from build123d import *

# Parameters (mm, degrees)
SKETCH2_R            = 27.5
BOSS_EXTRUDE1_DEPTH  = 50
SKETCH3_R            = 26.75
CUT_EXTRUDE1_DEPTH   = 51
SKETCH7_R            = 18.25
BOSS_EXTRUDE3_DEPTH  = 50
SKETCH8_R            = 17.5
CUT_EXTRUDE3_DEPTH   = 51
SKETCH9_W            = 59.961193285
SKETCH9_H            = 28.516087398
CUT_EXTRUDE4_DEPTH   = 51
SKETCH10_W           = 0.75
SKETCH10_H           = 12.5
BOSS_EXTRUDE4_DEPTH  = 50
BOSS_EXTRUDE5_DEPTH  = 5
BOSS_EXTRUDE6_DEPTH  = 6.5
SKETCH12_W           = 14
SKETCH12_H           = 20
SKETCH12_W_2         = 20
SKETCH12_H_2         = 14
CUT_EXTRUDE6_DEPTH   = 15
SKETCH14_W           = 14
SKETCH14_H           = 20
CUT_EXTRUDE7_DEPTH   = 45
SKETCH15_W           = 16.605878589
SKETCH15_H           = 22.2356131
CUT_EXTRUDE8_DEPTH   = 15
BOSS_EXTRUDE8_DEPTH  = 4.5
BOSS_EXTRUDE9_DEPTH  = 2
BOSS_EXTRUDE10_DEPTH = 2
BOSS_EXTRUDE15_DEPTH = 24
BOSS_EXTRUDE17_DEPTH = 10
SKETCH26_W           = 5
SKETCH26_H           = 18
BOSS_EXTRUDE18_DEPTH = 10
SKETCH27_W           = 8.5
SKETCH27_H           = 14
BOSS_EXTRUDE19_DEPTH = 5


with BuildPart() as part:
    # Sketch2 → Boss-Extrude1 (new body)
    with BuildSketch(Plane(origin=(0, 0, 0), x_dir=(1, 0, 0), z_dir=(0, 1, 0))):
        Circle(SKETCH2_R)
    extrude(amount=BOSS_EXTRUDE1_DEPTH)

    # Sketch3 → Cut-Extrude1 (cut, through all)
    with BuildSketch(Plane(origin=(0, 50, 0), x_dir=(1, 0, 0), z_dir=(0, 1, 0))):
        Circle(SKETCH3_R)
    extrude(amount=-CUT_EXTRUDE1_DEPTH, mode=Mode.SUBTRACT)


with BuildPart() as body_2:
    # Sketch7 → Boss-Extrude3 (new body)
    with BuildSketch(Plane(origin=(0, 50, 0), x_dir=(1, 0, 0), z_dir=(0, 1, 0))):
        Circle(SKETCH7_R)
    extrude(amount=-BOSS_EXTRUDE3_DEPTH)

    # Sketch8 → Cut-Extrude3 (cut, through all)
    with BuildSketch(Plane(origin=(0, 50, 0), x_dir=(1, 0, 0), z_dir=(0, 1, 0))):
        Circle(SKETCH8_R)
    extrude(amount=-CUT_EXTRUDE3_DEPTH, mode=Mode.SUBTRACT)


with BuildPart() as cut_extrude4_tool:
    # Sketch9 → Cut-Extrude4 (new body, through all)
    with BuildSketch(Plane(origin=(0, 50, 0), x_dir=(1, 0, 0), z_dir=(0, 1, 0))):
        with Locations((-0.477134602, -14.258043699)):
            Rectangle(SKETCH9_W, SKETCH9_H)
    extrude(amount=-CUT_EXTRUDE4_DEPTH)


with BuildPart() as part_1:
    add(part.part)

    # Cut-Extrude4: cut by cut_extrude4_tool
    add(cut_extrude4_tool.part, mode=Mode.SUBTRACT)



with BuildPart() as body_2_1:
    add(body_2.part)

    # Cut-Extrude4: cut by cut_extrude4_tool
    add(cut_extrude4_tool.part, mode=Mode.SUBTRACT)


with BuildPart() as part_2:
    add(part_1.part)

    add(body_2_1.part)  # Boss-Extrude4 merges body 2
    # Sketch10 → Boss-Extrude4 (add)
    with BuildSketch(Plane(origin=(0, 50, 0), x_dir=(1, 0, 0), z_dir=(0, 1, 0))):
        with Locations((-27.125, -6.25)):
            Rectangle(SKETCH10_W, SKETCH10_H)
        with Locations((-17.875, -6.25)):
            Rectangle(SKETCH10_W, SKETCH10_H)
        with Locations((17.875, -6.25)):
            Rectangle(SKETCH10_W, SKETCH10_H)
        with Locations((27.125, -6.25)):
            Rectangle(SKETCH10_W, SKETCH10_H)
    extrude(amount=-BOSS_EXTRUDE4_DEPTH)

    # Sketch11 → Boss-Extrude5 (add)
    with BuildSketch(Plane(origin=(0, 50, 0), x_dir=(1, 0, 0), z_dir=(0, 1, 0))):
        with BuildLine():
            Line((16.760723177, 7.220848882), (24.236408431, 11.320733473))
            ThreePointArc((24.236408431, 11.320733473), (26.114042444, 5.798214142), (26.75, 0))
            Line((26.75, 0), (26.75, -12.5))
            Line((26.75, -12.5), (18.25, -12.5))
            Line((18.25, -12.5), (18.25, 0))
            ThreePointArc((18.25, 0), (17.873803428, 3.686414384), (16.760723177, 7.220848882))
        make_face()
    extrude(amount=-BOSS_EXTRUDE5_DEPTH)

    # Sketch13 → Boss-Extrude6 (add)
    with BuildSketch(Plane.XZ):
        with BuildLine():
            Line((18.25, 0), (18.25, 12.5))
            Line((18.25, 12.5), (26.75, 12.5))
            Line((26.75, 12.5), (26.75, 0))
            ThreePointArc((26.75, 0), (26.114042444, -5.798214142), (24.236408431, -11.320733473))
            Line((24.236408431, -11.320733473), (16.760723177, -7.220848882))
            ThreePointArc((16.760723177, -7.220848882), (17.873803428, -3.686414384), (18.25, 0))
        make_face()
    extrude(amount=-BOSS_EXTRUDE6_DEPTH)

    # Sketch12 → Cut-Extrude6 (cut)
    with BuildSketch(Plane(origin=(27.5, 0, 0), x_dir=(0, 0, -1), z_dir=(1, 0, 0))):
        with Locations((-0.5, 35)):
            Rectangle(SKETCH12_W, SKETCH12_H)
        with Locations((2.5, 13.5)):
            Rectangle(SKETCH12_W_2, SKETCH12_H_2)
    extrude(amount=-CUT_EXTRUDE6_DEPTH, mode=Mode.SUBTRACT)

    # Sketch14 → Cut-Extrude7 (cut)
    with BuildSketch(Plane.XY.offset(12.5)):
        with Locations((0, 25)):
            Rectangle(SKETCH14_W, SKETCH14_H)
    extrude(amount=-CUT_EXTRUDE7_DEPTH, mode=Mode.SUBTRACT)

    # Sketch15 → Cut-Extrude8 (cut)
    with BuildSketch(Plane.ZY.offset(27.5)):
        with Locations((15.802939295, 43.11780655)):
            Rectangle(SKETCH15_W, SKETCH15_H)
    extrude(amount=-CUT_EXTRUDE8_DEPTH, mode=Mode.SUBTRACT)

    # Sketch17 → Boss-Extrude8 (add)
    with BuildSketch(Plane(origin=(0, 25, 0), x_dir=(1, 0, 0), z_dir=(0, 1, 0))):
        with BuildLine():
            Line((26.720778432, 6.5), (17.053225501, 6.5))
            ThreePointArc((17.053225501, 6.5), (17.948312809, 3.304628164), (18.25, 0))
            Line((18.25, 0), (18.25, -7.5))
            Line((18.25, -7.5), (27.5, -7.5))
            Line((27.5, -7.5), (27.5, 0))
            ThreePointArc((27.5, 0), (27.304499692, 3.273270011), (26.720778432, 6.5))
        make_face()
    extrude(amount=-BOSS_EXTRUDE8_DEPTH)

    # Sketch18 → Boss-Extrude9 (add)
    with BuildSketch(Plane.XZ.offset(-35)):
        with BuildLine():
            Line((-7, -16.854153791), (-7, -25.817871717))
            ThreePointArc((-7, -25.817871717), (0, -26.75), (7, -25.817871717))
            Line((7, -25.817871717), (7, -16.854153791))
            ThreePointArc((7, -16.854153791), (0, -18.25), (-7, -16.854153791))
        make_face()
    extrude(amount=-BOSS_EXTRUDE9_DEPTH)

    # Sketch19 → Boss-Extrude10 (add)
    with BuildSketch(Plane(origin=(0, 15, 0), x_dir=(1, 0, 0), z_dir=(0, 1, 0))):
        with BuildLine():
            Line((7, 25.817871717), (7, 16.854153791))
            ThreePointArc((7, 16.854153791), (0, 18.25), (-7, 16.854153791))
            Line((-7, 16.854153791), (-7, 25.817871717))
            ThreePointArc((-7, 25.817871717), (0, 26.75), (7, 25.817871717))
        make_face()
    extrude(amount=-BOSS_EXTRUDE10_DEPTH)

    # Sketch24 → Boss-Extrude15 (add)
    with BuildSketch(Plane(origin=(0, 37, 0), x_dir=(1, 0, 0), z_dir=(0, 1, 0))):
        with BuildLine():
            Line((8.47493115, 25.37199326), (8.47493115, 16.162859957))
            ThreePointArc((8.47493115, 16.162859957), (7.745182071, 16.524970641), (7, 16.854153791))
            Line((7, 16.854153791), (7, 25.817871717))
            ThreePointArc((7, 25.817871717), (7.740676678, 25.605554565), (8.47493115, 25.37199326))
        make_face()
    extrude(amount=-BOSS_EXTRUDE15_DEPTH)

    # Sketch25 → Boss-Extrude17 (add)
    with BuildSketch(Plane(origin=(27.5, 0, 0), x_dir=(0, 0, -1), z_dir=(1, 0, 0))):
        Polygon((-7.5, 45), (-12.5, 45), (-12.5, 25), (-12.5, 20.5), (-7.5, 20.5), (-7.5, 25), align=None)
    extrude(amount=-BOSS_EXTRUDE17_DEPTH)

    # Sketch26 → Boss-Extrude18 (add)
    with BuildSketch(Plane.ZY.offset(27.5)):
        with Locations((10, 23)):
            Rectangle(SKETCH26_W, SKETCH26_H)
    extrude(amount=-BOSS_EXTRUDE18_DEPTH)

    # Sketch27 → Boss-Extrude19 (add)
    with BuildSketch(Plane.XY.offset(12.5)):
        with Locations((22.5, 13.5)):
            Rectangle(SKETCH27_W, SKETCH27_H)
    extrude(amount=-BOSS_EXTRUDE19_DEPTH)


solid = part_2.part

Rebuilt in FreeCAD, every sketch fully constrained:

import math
import FreeCAD as App
import Part
import Sketcher
Q = App.Units.Quantity


def add_polygon(sketch, points):
    """Adds a closed chain of lines whose ends are joined by coincident constraints."""
    first, n = sketch.GeometryCount, len(points)
    for a, b in zip(points, points[1:] + points[:1]):
        sketch.addGeometry(Part.LineSegment(App.Vector(*a, 0), App.Vector(*b, 0)), False)
    for i in range(n):
        sketch.addConstraint(Sketcher.Constraint("Coincident", first + i, 2, first + (i + 1) % n, 1))

doc = App.newDocument("Part")
body = doc.addObject("PartDesign::Body", "Body")

sketch1 = doc.addObject("Sketcher::SketchObject", "Sketch")
body.addObject(sketch1)
sketch1.AttachmentSupport = (doc.XZ_Plane, [""])
sketch1.MapMode = "FlatFace"
sketch1.addGeometry(Part.Circle(App.Vector(0, 0, 0), App.Vector(0, 0, 1), 28), False)
sketch1.addConstraint(Sketcher.Constraint("Coincident", 0, 3, -1, 1))
sketch1.addConstraint(Sketcher.Constraint("Diameter", 0, Q("55 mm")))
pad1 = doc.addObject("PartDesign::Pad", "Pad")
body.addObject(pad1)
pad1.Profile = sketch1
pad1.Length = 50
pad1.Reversed = True

sketch2 = doc.addObject("Sketcher::SketchObject", "Sketch001")
body.addObject(sketch2)
sketch2.AttachmentSupport = (doc.XZ_Plane, [""])
sketch2.MapMode = "FlatFace"
sketch2.AttachmentOffset = App.Placement(App.Vector(0, 0, -50), App.Rotation())
sketch2.addGeometry(Part.Circle(App.Vector(0, 0, 0), App.Vector(0, 0, 1), 27), False)
sketch2.addConstraint(Sketcher.Constraint("Coincident", 0, 3, -1, 1))
sketch2.addConstraint(Sketcher.Constraint("Diameter", 0, Q("53.5 mm")))
pocket1 = doc.addObject("PartDesign::Pocket", "Pocket")
body.addObject(pocket1)
pocket1.Profile = sketch2
pocket1.Type = "ThroughAll"
pocket1.Reversed = True
body2 = doc.addObject("PartDesign::Body", "Body001")

sketch3 = doc.addObject("Sketcher::SketchObject", "Sketch002")
body2.addObject(sketch3)
sketch3.AttachmentSupport = (doc.getObject("XZ_Plane001"), [""])
sketch3.MapMode = "FlatFace"
sketch3.AttachmentOffset = App.Placement(App.Vector(0, 0, -50), App.Rotation())
sketch3.addGeometry(Part.Circle(App.Vector(0, 0, 0), App.Vector(0, 0, 1), 18), False)
sketch3.addConstraint(Sketcher.Constraint("Coincident", 0, 3, -1, 1))
sketch3.addConstraint(Sketcher.Constraint("Diameter", 0, Q("36.5 mm")))
pad2 = doc.addObject("PartDesign::Pad", "Pad001")
body2.addObject(pad2)
pad2.Profile = sketch3
pad2.Length = 50

sketch4 = doc.addObject("Sketcher::SketchObject", "Sketch003")
body2.addObject(sketch4)
sketch4.AttachmentSupport = (doc.getObject("XZ_Plane001"), [""])
sketch4.MapMode = "FlatFace"
sketch4.AttachmentOffset = App.Placement(App.Vector(0, 0, -50), App.Rotation())
sketch4.addGeometry(Part.Circle(App.Vector(0, 0, 0), App.Vector(0, 0, 1), 18), False)
sketch4.addConstraint(Sketcher.Constraint("Coincident", 0, 3, -1, 1))
sketch4.addConstraint(Sketcher.Constraint("Diameter", 0, Q("35 mm")))
pocket2 = doc.addObject("PartDesign::Pocket", "Pocket001")
body2.addObject(pocket2)
pocket2.Profile = sketch4
pocket2.Type = "ThroughAll"
pocket2.Reversed = True
body3 = doc.addObject("PartDesign::Body", "Body002")

sketch5 = doc.addObject("Sketcher::SketchObject", "Sketch004")
body3.addObject(sketch5)
sketch5.AttachmentSupport = (doc.getObject("XZ_Plane002"), [""])
sketch5.MapMode = "FlatFace"
sketch5.AttachmentOffset = App.Placement(App.Vector(0, 0, -50), App.Rotation())
add_polygon(sketch5, [(-30, 0), (-30, 29), (30, 29), (30, 0)])
sketch5.addConstraint(Sketcher.Constraint("Vertical", 0))
sketch5.addConstraint(Sketcher.Constraint("Horizontal", 1))
sketch5.addConstraint(Sketcher.Constraint("Vertical", 2))
sketch5.addConstraint(Sketcher.Constraint("Horizontal", 3))
sketch5.addConstraint(Sketcher.Constraint("PointOnObject", 2, 2, -1))
sketch5.addConstraint(Sketcher.Constraint("DistanceX", 1, 1, 1, 2, Q("59.961193 mm")))
sketch5.addConstraint(Sketcher.Constraint("DistanceY", 0, 1, 0, 2, Q("28.516087 mm")))
sketch5.addConstraint(Sketcher.Constraint("DistanceX", 0, 2, -1, 1, Q("30.457731 mm")))
pad3 = doc.addObject("PartDesign::Pad", "Pad002")
body3.addObject(pad3)
pad3.Profile = sketch5
pad3.Length = 51
doc.recompute()

body4 = doc.addObject("PartDesign::Body", "Body003")
body4.BaseFeature = body3
boolean = doc.addObject("PartDesign::Boolean", "Boolean")
body.addObject(boolean)
boolean.Type = "Cut"
boolean.addObjects([body4])
doc.recompute()

boolean2 = doc.addObject("PartDesign::Boolean", "Boolean001")
body2.addObject(boolean2)
boolean2.Type = "Cut"
boolean2.addObjects([body3])
body.AllowCompound = True
doc.recompute()

boolean3 = doc.addObject("PartDesign::Boolean", "Boolean002")
body.addObject(boolean3)
boolean3.Type = "Fuse"
boolean3.addObjects([body2])

sketch6 = doc.addObject("Sketcher::SketchObject", "Sketch005")
body.addObject(sketch6)
sketch6.AttachmentSupport = (doc.XZ_Plane, [""])
sketch6.MapMode = "FlatFace"
sketch6.AttachmentOffset = App.Placement(App.Vector(0, 0, -50), App.Rotation())
add_polygon(sketch6, [(-27.5, 0), (-27.5, 12.5), (-26.8, 12.5), (-26.8, 0)])
add_polygon(sketch6, [(-18.2, 0), (-18.2, 12.5), (-17.5, 12.5), (-17.5, 0)])
add_polygon(sketch6, [(17.5, 0), (17.5, 12.5), (18.2, 12.5), (18.2, 0)])
add_polygon(sketch6, [(26.8, 0), (26.8, 12.5), (27.5, 12.5), (27.5, 0)])
sketch6.addConstraint(Sketcher.Constraint("Vertical", 0))
sketch6.addConstraint(Sketcher.Constraint("Horizontal", 1))
sketch6.addConstraint(Sketcher.Constraint("Vertical", 2))
sketch6.addConstraint(Sketcher.Constraint("Horizontal", 3))
sketch6.addConstraint(Sketcher.Constraint("Vertical", 4))
sketch6.addConstraint(Sketcher.Constraint("Horizontal", 5))
sketch6.addConstraint(Sketcher.Constraint("Vertical", 6))
sketch6.addConstraint(Sketcher.Constraint("Horizontal", 7))
sketch6.addConstraint(Sketcher.Constraint("Vertical", 8))
sketch6.addConstraint(Sketcher.Constraint("Horizontal", 9))
sketch6.addConstraint(Sketcher.Constraint("Vertical", 10))
sketch6.addConstraint(Sketcher.Constraint("Horizontal", 11))
sketch6.addConstraint(Sketcher.Constraint("Vertical", 12))
sketch6.addConstraint(Sketcher.Constraint("Horizontal", 13))
sketch6.addConstraint(Sketcher.Constraint("Vertical", 14))
sketch6.addConstraint(Sketcher.Constraint("Horizontal", 15))
sketch6.addConstraint(Sketcher.Constraint("Symmetric", 7, 2, 10, 2, -1, 1))
sketch6.addConstraint(Sketcher.Constraint("Symmetric", 3, 2, 14, 2, -1, 1))
sketch6.addConstraint(Sketcher.Constraint("Symmetric", 5, 2, 8, 2, -2))
sketch6.addConstraint(Sketcher.Constraint("Symmetric", 1, 2, 12, 2, -2))
sketch6.addConstraint(Sketcher.Constraint("PointOnObject", 2, 2, -1))
sketch6.addConstraint(Sketcher.Constraint("PointOnObject", 6, 2, -1))
sketch6.addConstraint(Sketcher.Constraint("Horizontal", 1, 2, 4, 2))
sketch6.addConstraint(Sketcher.Constraint("Equal", 3, 5))
sketch6.addConstraint(Sketcher.Constraint("DistanceY", 0, 1, 0, 2, Q("12.5 mm")))
sketch6.addConstraint(Sketcher.Constraint("DistanceX", 0, 2, 5, 2, Q("10 mm")))
sketch6.addConstraint(Sketcher.Constraint("DistanceX", 5, 2, 8, 2, Q("35 mm")))
sketch6.addConstraint(Sketcher.Constraint("DistanceX", 1, 1, 1, 2, Q("0.75 mm")))
pad4 = doc.addObject("PartDesign::Pad", "Pad003")
body.addObject(pad4)
pad4.Profile = sketch6
pad4.Length = 50

sketch7 = doc.addObject("Sketcher::SketchObject", "Sketch006")
body.addObject(sketch7)
sketch7.AttachmentSupport = (doc.XZ_Plane, [""])
sketch7.MapMode = "FlatFace"
sketch7.AttachmentOffset = App.Placement(App.Vector(0, 0, -50), App.Rotation())
sketch7.addGeometry(Part.LineSegment(App.Vector(24, -11, 0), App.Vector(17, -7, 0)), False)
sketch7.addGeometry(Part.ArcOfCircle(Part.Circle(App.Vector(0, 0, 0), App.Vector(0, 0, 1), 18), math.radians(-23), math.radians(0)), False)
sketch7.addGeometry(Part.LineSegment(App.Vector(18, 0, 0), App.Vector(18, 12, 0)), False)
sketch7.addGeometry(Part.LineSegment(App.Vector(18, 12, 0), App.Vector(27, 12, 0)), False)
sketch7.addGeometry(Part.LineSegment(App.Vector(27, 12, 0), App.Vector(27, 0, 0)), False)
sketch7.addGeometry(Part.ArcOfCircle(Part.Circle(App.Vector(0, 0, 0), App.Vector(0, 0, 1), 27), math.radians(-25), math.radians(0)), False)
sketch7.addConstraint(Sketcher.Constraint("Coincident", 0, 2, 1, 1))
sketch7.addConstraint(Sketcher.Constraint("Tangent", 1, 2, 2, 1))
sketch7.addConstraint(Sketcher.Constraint("Coincident", 2, 2, 3, 1))
sketch7.addConstraint(Sketcher.Constraint("Coincident", 3, 2, 4, 1))
sketch7.addConstraint(Sketcher.Constraint("Tangent", 4, 2, 5, 2))
sketch7.addConstraint(Sketcher.Constraint("Coincident", 5, 1, 0, 1))
sketch7.addConstraint(Sketcher.Constraint("Vertical", 2))
sketch7.addConstraint(Sketcher.Constraint("Horizontal", 3))
sketch7.addConstraint(Sketcher.Constraint("Vertical", 4))
sketch7.addConstraint(Sketcher.Constraint("Coincident", 1, 3, -1, 1))
sketch7.addConstraint(Sketcher.Constraint("Coincident", 5, 3, -1, 1))
sketch7.addConstraint(Sketcher.Constraint("Radius", 1, Q("18.25 mm")))
sketch7.addConstraint(Sketcher.Constraint("Radius", 5, Q("26.75 mm")))
sketch7.addConstraint(Sketcher.Constraint("DistanceY", 2, 1, 2, 2, Q("12.5 mm")))
sketch7.addConstraint(Sketcher.Constraint("Distance", 0, Q("8.526132 mm")))
sketch7.addConstraint(Sketcher.Constraint("DistanceY", 0, 2, -1, 1, Q("7.220849 mm")))
pad5 = doc.addObject("PartDesign::Pad", "Pad004")
body.addObject(pad5)
pad5.Profile = sketch7
pad5.Length = 5

sketch8 = doc.addObject("Sketcher::SketchObject", "Sketch007")
body.addObject(sketch8)
sketch8.AttachmentSupport = (doc.XZ_Plane, [""])
sketch8.MapMode = "FlatFace"
sketch8.addGeometry(Part.LineSegment(App.Vector(18, 12, 0), App.Vector(18, 0, 0)), False)
sketch8.addGeometry(Part.ArcOfCircle(Part.Circle(App.Vector(0, 0, 0), App.Vector(0, 0, 1), 18), math.radians(-23), math.radians(0)), False)
sketch8.addGeometry(Part.LineSegment(App.Vector(17, -7, 0), App.Vector(24, -11, 0)), False)
sketch8.addGeometry(Part.ArcOfCircle(Part.Circle(App.Vector(0, 0, 0), App.Vector(0, 0, 1), 27), math.radians(-25), math.radians(0)), False)
sketch8.addGeometry(Part.LineSegment(App.Vector(27, 0, 0), App.Vector(27, 12, 0)), False)
sketch8.addGeometry(Part.LineSegment(App.Vector(27, 12, 0), App.Vector(18, 12, 0)), False)
sketch8.addConstraint(Sketcher.Constraint("Tangent", 0, 2, 1, 2))
sketch8.addConstraint(Sketcher.Constraint("Coincident", 1, 1, 2, 1))
sketch8.addConstraint(Sketcher.Constraint("Coincident", 2, 2, 3, 1))
sketch8.addConstraint(Sketcher.Constraint("Tangent", 3, 2, 4, 1))
sketch8.addConstraint(Sketcher.Constraint("Coincident", 4, 2, 5, 1))
sketch8.addConstraint(Sketcher.Constraint("Coincident", 5, 2, 0, 1))
sketch8.addConstraint(Sketcher.Constraint("Vertical", 0))
sketch8.addConstraint(Sketcher.Constraint("Vertical", 4))
sketch8.addConstraint(Sketcher.Constraint("Horizontal", 5))
sketch8.addConstraint(Sketcher.Constraint("Coincident", 1, 3, -1, 1))
sketch8.addConstraint(Sketcher.Constraint("Coincident", 3, 3, -1, 1))
sketch8.addConstraint(Sketcher.Constraint("Radius", 1, Q("18.25 mm")))
sketch8.addConstraint(Sketcher.Constraint("Radius", 3, Q("26.75 mm")))
sketch8.addConstraint(Sketcher.Constraint("DistanceY", 0, 2, 0, 1, Q("12.5 mm")))
sketch8.addConstraint(Sketcher.Constraint("Distance", 2, Q("8.526132 mm")))
sketch8.addConstraint(Sketcher.Constraint("DistanceY", 1, 1, -1, 1, Q("7.220849 mm")))
pad6 = doc.addObject("PartDesign::Pad", "Pad005")
body.addObject(pad6)
pad6.Profile = sketch8
pad6.Length = 6.5
pad6.Reversed = True

sketch9 = doc.addObject("Sketcher::SketchObject", "Sketch008")
body.addObject(sketch9)
sketch9.AttachmentSupport = (doc.YZ_Plane, [""])
sketch9.MapMode = "FlatFace"
sketch9.AttachmentOffset = App.Placement(App.Vector(0, 0, 27.5), App.Rotation())
add_polygon(sketch9, [(45, 8), (25, 8), (25, -6), (45, -6)])
add_polygon(sketch9, [(20, 8), (6, 8), (6, -12), (20, -12)])
sketch9.addConstraint(Sketcher.Constraint("Horizontal", 0))
sketch9.addConstraint(Sketcher.Constraint("Vertical", 1))
sketch9.addConstraint(Sketcher.Constraint("Horizontal", 2))
sketch9.addConstraint(Sketcher.Constraint("Vertical", 3))
sketch9.addConstraint(Sketcher.Constraint("Horizontal", 4))
sketch9.addConstraint(Sketcher.Constraint("Vertical", 5))
sketch9.addConstraint(Sketcher.Constraint("Horizontal", 6))
sketch9.addConstraint(Sketcher.Constraint("Vertical", 7))
sketch9.addConstraint(Sketcher.Constraint("Horizontal", 3, 2, 4, 2))
sketch9.addConstraint(Sketcher.Constraint("Equal", 6, 1))
sketch9.addConstraint(Sketcher.Constraint("Equal", 2, 5))
sketch9.addConstraint(Sketcher.Constraint("DistanceX", 0, 2, 0, 1, Q("20 mm")))
sketch9.addConstraint(Sketcher.Constraint("DistanceX", 4, 2, 4, 1, Q("14 mm")))
sketch9.addConstraint(Sketcher.Constraint("DistanceX", -1, 1, 0, 2, Q("25 mm")))
sketch9.addConstraint(Sketcher.Constraint("DistanceY", -1, 1, 0, 2, Q("7.5 mm")))
sketch9.addConstraint(Sketcher.Constraint("DistanceX", -1, 1, 4, 2, Q("6.5 mm")))
pocket3 = doc.addObject("PartDesign::Pocket", "Pocket002")
body.addObject(pocket3)
pocket3.Profile = sketch9
pocket3.Length = 15

sketch10 = doc.addObject("Sketcher::SketchObject", "Sketch009")
body.addObject(sketch10)
sketch10.AttachmentSupport = (doc.XY_Plane, [""])
sketch10.MapMode = "FlatFace"
sketch10.AttachmentOffset = App.Placement(App.Vector(0, 0, 12.5), App.Rotation())
add_polygon(sketch10, [(-7, 35), (-7, 15), (7, 15), (7, 35)])
sketch10.addConstraint(Sketcher.Constraint("Vertical", 0))
sketch10.addConstraint(Sketcher.Constraint("Horizontal", 1))
sketch10.addConstraint(Sketcher.Constraint("Vertical", 2))
sketch10.addConstraint(Sketcher.Constraint("Horizontal", 3))
sketch10.addConstraint(Sketcher.Constraint("DistanceX", 1, 1, 1, 2, Q("14 mm")))
sketch10.addConstraint(Sketcher.Constraint("DistanceY", 0, 2, 0, 1, Q("20 mm")))
sketch10.addConstraint(Sketcher.Constraint("DistanceX", 0, 2, -1, 1, Q("7 mm")))
sketch10.addConstraint(Sketcher.Constraint("DistanceY", -1, 1, 0, 2, Q("15 mm")))
pocket4 = doc.addObject("PartDesign::Pocket", "Pocket003")
body.addObject(pocket4)
pocket4.Profile = sketch10
pocket4.Length = 45

sketch11 = doc.addObject("Sketcher::SketchObject", "Sketch010")
body.addObject(sketch11)
sketch11.AttachmentSupport = (doc.YZ_Plane, [""])
sketch11.MapMode = "FlatFace"
sketch11.AttachmentOffset = App.Placement(App.Vector(0, 0, -27.5), App.Rotation())
add_polygon(sketch11, [(54, 8), (32, 8), (32, 24), (54, 24)])
sketch11.addConstraint(Sketcher.Constraint("Horizontal", 0))
sketch11.addConstraint(Sketcher.Constraint("Vertical", 1))
sketch11.addConstraint(Sketcher.Constraint("Horizontal", 2))
sketch11.addConstraint(Sketcher.Constraint("Vertical", 3))
sketch11.addConstraint(Sketcher.Constraint("DistanceX", -1, 1, 0, 2, Q("32 mm")))
sketch11.addConstraint(Sketcher.Constraint("DistanceY", -1, 1, 0, 2, Q("7.5 mm")))
sketch11.addConstraint(Sketcher.Constraint("DistanceY", 1, 1, 1, 2, Q("16.605879 mm")))
sketch11.addConstraint(Sketcher.Constraint("DistanceX", 0, 2, 0, 1, Q("22.235613 mm")))
pocket5 = doc.addObject("PartDesign::Pocket", "Pocket004")
body.addObject(pocket5)
pocket5.Profile = sketch11
pocket5.Length = 15
pocket5.Reversed = True

sketch12 = doc.addObject("Sketcher::SketchObject", "Sketch011")
body.addObject(sketch12)
sketch12.AttachmentSupport = (doc.XZ_Plane, [""])
sketch12.MapMode = "FlatFace"
sketch12.AttachmentOffset = App.Placement(App.Vector(0, 0, -25), App.Rotation())
sketch12.addGeometry(Part.LineSegment(App.Vector(27, -6, 0), App.Vector(17, -6, 0)), False)
sketch12.addGeometry(Part.ArcOfCircle(Part.Circle(App.Vector(0, 0, 0), App.Vector(0, 0, 1), 18), math.radians(-21), math.radians(0)), False)
sketch12.addGeometry(Part.LineSegment(App.Vector(18, 0, 0), App.Vector(18, 8, 0)), False)
sketch12.addGeometry(Part.LineSegment(App.Vector(18, 8, 0), App.Vector(28, 8, 0)), False)
sketch12.addGeometry(Part.LineSegment(App.Vector(28, 8, 0), App.Vector(28, 0, 0)), False)
sketch12.addGeometry(Part.ArcOfCircle(Part.Circle(App.Vector(0, 0, 0), App.Vector(0, 0, 1), 28), math.radians(-13.67), math.radians(0)), False)
sketch12.addConstraint(Sketcher.Constraint("Coincident", 0, 2, 1, 1))
sketch12.addConstraint(Sketcher.Constraint("Tangent", 1, 2, 2, 1))
sketch12.addConstraint(Sketcher.Constraint("Coincident", 2, 2, 3, 1))
sketch12.addConstraint(Sketcher.Constraint("Coincident", 3, 2, 4, 1))
sketch12.addConstraint(Sketcher.Constraint("Tangent", 4, 2, 5, 2))
sketch12.addConstraint(Sketcher.Constraint("Coincident", 5, 1, 0, 1))
sketch12.addConstraint(Sketcher.Constraint("Horizontal", 0))
sketch12.addConstraint(Sketcher.Constraint("Vertical", 2))
sketch12.addConstraint(Sketcher.Constraint("Horizontal", 3))
sketch12.addConstraint(Sketcher.Constraint("Vertical", 4))
sketch12.addConstraint(Sketcher.Constraint("Coincident", 1, 3, -1, 1))
sketch12.addConstraint(Sketcher.Constraint("Coincident", 5, 3, -1, 1))
sketch12.addConstraint(Sketcher.Constraint("Radius", 5, Q("27.5 mm")))
sketch12.addConstraint(Sketcher.Constraint("Radius", 1, Q("18.25 mm")))
sketch12.addConstraint(Sketcher.Constraint("DistanceY", 2, 1, 2, 2, Q("7.5 mm")))
sketch12.addConstraint(Sketcher.Constraint("DistanceY", 0, 2, 2, 2, Q("14 mm")))
pad7 = doc.addObject("PartDesign::Pad", "Pad006")
body.addObject(pad7)
pad7.Profile = sketch12
pad7.Length = 4.5

sketch13 = doc.addObject("Sketcher::SketchObject", "Sketch012")
body.addObject(sketch13)
sketch13.AttachmentSupport = (doc.XZ_Plane, [""])
sketch13.MapMode = "FlatFace"
sketch13.AttachmentOffset = App.Placement(App.Vector(0, 0, -35), App.Rotation())
sketch13.addGeometry(Part.LineSegment(App.Vector(-7, -17, 0), App.Vector(-7, -26, 0)), False)
sketch13.addGeometry(Part.ArcOfCircle(Part.Circle(App.Vector(0, 0, 0), App.Vector(0, 0, 1), 27), math.radians(-105), math.radians(-75)), False)
sketch13.addGeometry(Part.LineSegment(App.Vector(7, -26, 0), App.Vector(7, -17, 0)), False)
sketch13.addGeometry(Part.ArcOfCircle(Part.Circle(App.Vector(0, 0, 0), App.Vector(0, 0, 1), 18), math.radians(-113), math.radians(-67)), False)
sketch13.addConstraint(Sketcher.Constraint("Coincident", 0, 2, 1, 1))
sketch13.addConstraint(Sketcher.Constraint("Coincident", 1, 2, 2, 1))
sketch13.addConstraint(Sketcher.Constraint("Coincident", 2, 2, 3, 2))
sketch13.addConstraint(Sketcher.Constraint("Coincident", 3, 1, 0, 1))
sketch13.addConstraint(Sketcher.Constraint("Vertical", 0))
sketch13.addConstraint(Sketcher.Constraint("Vertical", 2))
sketch13.addConstraint(Sketcher.Constraint("Coincident", 1, 3, -1, 1))
sketch13.addConstraint(Sketcher.Constraint("Coincident", 3, 3, -1, 1))
sketch13.addConstraint(Sketcher.Constraint("Horizontal", 0, 2, 1, 2))
sketch13.addConstraint(Sketcher.Constraint("Radius", 1, Q("26.75 mm")))
sketch13.addConstraint(Sketcher.Constraint("Radius", 3, Q("18.25 mm")))
sketch13.addConstraint(Sketcher.Constraint("DistanceX", 0, 2, -1, 1, Q("7 mm")))
pad8 = doc.addObject("PartDesign::Pad", "Pad007")
body.addObject(pad8)
pad8.Profile = sketch13
pad8.Length = 2
pad8.Reversed = True

sketch14 = doc.addObject("Sketcher::SketchObject", "Sketch013")
body.addObject(sketch14)
sketch14.AttachmentSupport = (doc.XZ_Plane, [""])
sketch14.MapMode = "FlatFace"
sketch14.AttachmentOffset = App.Placement(App.Vector(0, 0, -15), App.Rotation())
sketch14.addGeometry(Part.LineSegment(App.Vector(7, -17, 0), App.Vector(7, -26, 0)), False)
sketch14.addGeometry(Part.ArcOfCircle(Part.Circle(App.Vector(0, 0, 0), App.Vector(0, 0, 1), 27), math.radians(-105), math.radians(-75)), False)
sketch14.addGeometry(Part.LineSegment(App.Vector(-7, -26, 0), App.Vector(-7, -17, 0)), False)
sketch14.addGeometry(Part.ArcOfCircle(Part.Circle(App.Vector(0, 0, 0), App.Vector(0, 0, 1), 18), math.radians(-113), math.radians(-67)), False)
sketch14.addConstraint(Sketcher.Constraint("Coincident", 0, 2, 1, 2))
sketch14.addConstraint(Sketcher.Constraint("Coincident", 1, 1, 2, 1))
sketch14.addConstraint(Sketcher.Constraint("Coincident", 2, 2, 3, 1))
sketch14.addConstraint(Sketcher.Constraint("Coincident", 3, 2, 0, 1))
sketch14.addConstraint(Sketcher.Constraint("Vertical", 0))
sketch14.addConstraint(Sketcher.Constraint("Vertical", 2))
sketch14.addConstraint(Sketcher.Constraint("Coincident", 1, 3, -1, 1))
sketch14.addConstraint(Sketcher.Constraint("Coincident", 3, 3, -1, 1))
sketch14.addConstraint(Sketcher.Constraint("Horizontal", 0, 2, 1, 1))
sketch14.addConstraint(Sketcher.Constraint("Radius", 1, Q("26.75 mm")))
sketch14.addConstraint(Sketcher.Constraint("Radius", 3, Q("18.25 mm")))
sketch14.addConstraint(Sketcher.Constraint("DistanceX", -1, 1, 0, 2, Q("7 mm")))
pad9 = doc.addObject("PartDesign::Pad", "Pad008")
body.addObject(pad9)
pad9.Profile = sketch14
pad9.Length = 2

sketch15 = doc.addObject("Sketcher::SketchObject", "Sketch014")
body.addObject(sketch15)
sketch15.AttachmentSupport = (doc.XZ_Plane, [""])
sketch15.MapMode = "FlatFace"
sketch15.AttachmentOffset = App.Placement(App.Vector(0, 0, -37), App.Rotation())
sketch15.addGeometry(Part.LineSegment(App.Vector(8.5, -16.2, 0), App.Vector(8.5, -25.4, 0)), False)
sketch15.addGeometry(Part.ArcOfCircle(Part.Circle(App.Vector(0, 0, 0), App.Vector(0, 0, 1), 26.7), math.radians(-74.83), math.radians(-71.53)), False)
sketch15.addGeometry(Part.LineSegment(App.Vector(7, -25.8, 0), App.Vector(7, -16.9, 0)), False)
sketch15.addGeometry(Part.ArcOfCircle(Part.Circle(App.Vector(0, 0, 0), App.Vector(0, 0, 1), 18.2), math.radians(-67.45), math.radians(-62.33)), False)
sketch15.addConstraint(Sketcher.Constraint("Coincident", 0, 2, 1, 2))
sketch15.addConstraint(Sketcher.Constraint("Coincident", 1, 1, 2, 1))
sketch15.addConstraint(Sketcher.Constraint("Coincident", 2, 2, 3, 1))
sketch15.addConstraint(Sketcher.Constraint("Coincident", 3, 2, 0, 1))
sketch15.addConstraint(Sketcher.Constraint("Vertical", 0))
sketch15.addConstraint(Sketcher.Constraint("Vertical", 2))
sketch15.addConstraint(Sketcher.Constraint("Coincident", 1, 3, -1, 1))
sketch15.addConstraint(Sketcher.Constraint("Coincident", 3, 3, -1, 1))
sketch15.addConstraint(Sketcher.Constraint("Radius", 1, Q("26.749999 mm")))
sketch15.addConstraint(Sketcher.Constraint("Radius", 3, Q("18.25 mm")))
sketch15.addConstraint(Sketcher.Constraint("DistanceX", -1, 1, 1, 1, Q("7 mm")))
sketch15.addConstraint(Sketcher.Constraint("DistanceY", 0, 2, 0, 1, Q("9.209133 mm")))
pad10 = doc.addObject("PartDesign::Pad", "Pad009")
body.addObject(pad10)
pad10.Profile = sketch15
pad10.Length = 24

sketch16 = doc.addObject("Sketcher::SketchObject", "Sketch015")
body.addObject(sketch16)
sketch16.AttachmentSupport = (doc.YZ_Plane, [""])
sketch16.MapMode = "FlatFace"
sketch16.AttachmentOffset = App.Placement(App.Vector(0, 0, 27.5), App.Rotation())
add_polygon(sketch16, [(45, 8), (45, 12), (20, 12), (20, 8)])
sketch16.addConstraint(Sketcher.Constraint("Vertical", 0))
sketch16.addConstraint(Sketcher.Constraint("Horizontal", 1))
sketch16.addConstraint(Sketcher.Constraint("Vertical", 2))
sketch16.addConstraint(Sketcher.Constraint("Horizontal", 3))
sketch16.addConstraint(Sketcher.Constraint("DistanceY", 0, 1, 0, 2, Q("5 mm")))
sketch16.addConstraint(Sketcher.Constraint("DistanceX", 1, 2, 1, 1, Q("24.5 mm")))
sketch16.addConstraint(Sketcher.Constraint("DistanceX", -1, 1, 0, 2, Q("45 mm")))
sketch16.addConstraint(Sketcher.Constraint("DistanceY", -1, 1, 0, 2, Q("12.5 mm")))
pad11 = doc.addObject("PartDesign::Pad", "Pad010")
body.addObject(pad11)
pad11.Profile = sketch16
pad11.Length = 10
pad11.Reversed = True

sketch17 = doc.addObject("Sketcher::SketchObject", "Sketch016")
body.addObject(sketch17)
sketch17.AttachmentSupport = (doc.YZ_Plane, [""])
sketch17.MapMode = "FlatFace"
sketch17.AttachmentOffset = App.Placement(App.Vector(0, 0, -27.5), App.Rotation())
add_polygon(sketch17, [(32, 8), (14, 8), (14, 12), (32, 12)])
sketch17.addConstraint(Sketcher.Constraint("Horizontal", 0))
sketch17.addConstraint(Sketcher.Constraint("Vertical", 1))
sketch17.addConstraint(Sketcher.Constraint("Horizontal", 2))
sketch17.addConstraint(Sketcher.Constraint("Vertical", 3))
sketch17.addConstraint(Sketcher.Constraint("DistanceX", 0, 2, 0, 1, Q("18 mm")))
sketch17.addConstraint(Sketcher.Constraint("DistanceY", 1, 1, 1, 2, Q("5 mm")))
sketch17.addConstraint(Sketcher.Constraint("DistanceX", -1, 1, 0, 2, Q("14 mm")))
sketch17.addConstraint(Sketcher.Constraint("DistanceY", -1, 1, 0, 2, Q("7.5 mm")))
pad12 = doc.addObject("PartDesign::Pad", "Pad011")
body.addObject(pad12)
pad12.Profile = sketch17
pad12.Length = 10

sketch18 = doc.addObject("Sketcher::SketchObject", "Sketch017")
body.addObject(sketch18)
sketch18.AttachmentSupport = (doc.XY_Plane, [""])
sketch18.MapMode = "FlatFace"
sketch18.AttachmentOffset = App.Placement(App.Vector(0, 0, 12.5), App.Rotation())
add_polygon(sketch18, [(18, 20), (18, 6), (27, 6), (27, 20)])
sketch18.addConstraint(Sketcher.Constraint("Vertical", 0))
sketch18.addConstraint(Sketcher.Constraint("Horizontal", 1))
sketch18.addConstraint(Sketcher.Constraint("Vertical", 2))
sketch18.addConstraint(Sketcher.Constraint("Horizontal", 3))
sketch18.addConstraint(Sketcher.Constraint("DistanceY", 0, 2, 0, 1, Q("14 mm")))
sketch18.addConstraint(Sketcher.Constraint("DistanceX", 1, 1, 1, 2, Q("8.5 mm")))
sketch18.addConstraint(Sketcher.Constraint("DistanceY", -1, 1, 0, 2, Q("6.5 mm")))
sketch18.addConstraint(Sketcher.Constraint("DistanceX", -1, 1, 0, 2, Q("18.25 mm")))
pad13 = doc.addObject("PartDesign::Pad", "Pad012")
body.addObject(pad13)
pad13.Profile = sketch18
pad13.Length = 5
pad13.Reversed = True

doc.recompute()
